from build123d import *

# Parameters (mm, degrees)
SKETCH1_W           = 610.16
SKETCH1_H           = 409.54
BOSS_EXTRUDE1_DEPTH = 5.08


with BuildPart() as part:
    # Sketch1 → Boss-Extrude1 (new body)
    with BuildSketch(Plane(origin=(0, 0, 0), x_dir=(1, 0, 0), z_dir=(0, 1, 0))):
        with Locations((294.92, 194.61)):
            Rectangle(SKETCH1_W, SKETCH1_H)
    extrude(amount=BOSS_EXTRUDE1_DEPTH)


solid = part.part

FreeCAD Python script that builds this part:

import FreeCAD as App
import Part
import Sketcher
Q = App.Units.Quantity

doc = App.newDocument("Part")
body = doc.addObject("PartDesign::Body", "Body")

# Sketch on XZ plane
sketch1 = body.newObject("Sketcher::SketchObject", "Sketch")
sketch1.AttachmentSupport = (doc.getObject("XZ_Plane"), [""])
sketch1.MapMode = "FlatFace"
sketch1.addGeometry([
    Part.LineSegment(App.Vector(-10, -399, 0), App.Vector(-10, 10, 0)),
    Part.LineSegment(App.Vector(-10, 10, 0), App.Vector(600, 10, 0)),
    Part.LineSegment(App.Vector(600, 10, 0), App.Vector(600, -399, 0)),
    Part.LineSegment(App.Vector(600, -399, 0), App.Vector(-10, -399, 0)),
], False)
sketch1.addConstraint([
    Sketcher.Constraint("Coincident", 0, 2, 1, 1),
    Sketcher.Constraint("Coincident", 1, 2, 2, 1),
    Sketcher.Constraint("Coincident", 2, 2, 3, 1),
    Sketcher.Constraint("Coincident", 3, 2, 0, 1),
    Sketcher.Constraint("Vertical", 0),
    Sketcher.Constraint("Horizontal", 1),
    Sketcher.Constraint("Vertical", 2),
    Sketcher.Constraint("Horizontal", 3),
    Sketcher.Constraint("DistanceX", 0, 2, -1, 1, Q("0.4 in")),
    Sketcher.Constraint("DistanceY", -1, 1, 0, 2, Q("0.4 in")),
    Sketcher.Constraint("DistanceX", 1, 1, 1, 2, 610.16),
    Sketcher.Constraint("DistanceY", 0, 1, 0, 2, 409.54),
])
pad1 = body.newObject("PartDesign::Pad", "Pad")
pad1.Profile = sketch1
pad1.Length = Q("0.2 in")
pad1.Reversed = True

doc.recompute()
